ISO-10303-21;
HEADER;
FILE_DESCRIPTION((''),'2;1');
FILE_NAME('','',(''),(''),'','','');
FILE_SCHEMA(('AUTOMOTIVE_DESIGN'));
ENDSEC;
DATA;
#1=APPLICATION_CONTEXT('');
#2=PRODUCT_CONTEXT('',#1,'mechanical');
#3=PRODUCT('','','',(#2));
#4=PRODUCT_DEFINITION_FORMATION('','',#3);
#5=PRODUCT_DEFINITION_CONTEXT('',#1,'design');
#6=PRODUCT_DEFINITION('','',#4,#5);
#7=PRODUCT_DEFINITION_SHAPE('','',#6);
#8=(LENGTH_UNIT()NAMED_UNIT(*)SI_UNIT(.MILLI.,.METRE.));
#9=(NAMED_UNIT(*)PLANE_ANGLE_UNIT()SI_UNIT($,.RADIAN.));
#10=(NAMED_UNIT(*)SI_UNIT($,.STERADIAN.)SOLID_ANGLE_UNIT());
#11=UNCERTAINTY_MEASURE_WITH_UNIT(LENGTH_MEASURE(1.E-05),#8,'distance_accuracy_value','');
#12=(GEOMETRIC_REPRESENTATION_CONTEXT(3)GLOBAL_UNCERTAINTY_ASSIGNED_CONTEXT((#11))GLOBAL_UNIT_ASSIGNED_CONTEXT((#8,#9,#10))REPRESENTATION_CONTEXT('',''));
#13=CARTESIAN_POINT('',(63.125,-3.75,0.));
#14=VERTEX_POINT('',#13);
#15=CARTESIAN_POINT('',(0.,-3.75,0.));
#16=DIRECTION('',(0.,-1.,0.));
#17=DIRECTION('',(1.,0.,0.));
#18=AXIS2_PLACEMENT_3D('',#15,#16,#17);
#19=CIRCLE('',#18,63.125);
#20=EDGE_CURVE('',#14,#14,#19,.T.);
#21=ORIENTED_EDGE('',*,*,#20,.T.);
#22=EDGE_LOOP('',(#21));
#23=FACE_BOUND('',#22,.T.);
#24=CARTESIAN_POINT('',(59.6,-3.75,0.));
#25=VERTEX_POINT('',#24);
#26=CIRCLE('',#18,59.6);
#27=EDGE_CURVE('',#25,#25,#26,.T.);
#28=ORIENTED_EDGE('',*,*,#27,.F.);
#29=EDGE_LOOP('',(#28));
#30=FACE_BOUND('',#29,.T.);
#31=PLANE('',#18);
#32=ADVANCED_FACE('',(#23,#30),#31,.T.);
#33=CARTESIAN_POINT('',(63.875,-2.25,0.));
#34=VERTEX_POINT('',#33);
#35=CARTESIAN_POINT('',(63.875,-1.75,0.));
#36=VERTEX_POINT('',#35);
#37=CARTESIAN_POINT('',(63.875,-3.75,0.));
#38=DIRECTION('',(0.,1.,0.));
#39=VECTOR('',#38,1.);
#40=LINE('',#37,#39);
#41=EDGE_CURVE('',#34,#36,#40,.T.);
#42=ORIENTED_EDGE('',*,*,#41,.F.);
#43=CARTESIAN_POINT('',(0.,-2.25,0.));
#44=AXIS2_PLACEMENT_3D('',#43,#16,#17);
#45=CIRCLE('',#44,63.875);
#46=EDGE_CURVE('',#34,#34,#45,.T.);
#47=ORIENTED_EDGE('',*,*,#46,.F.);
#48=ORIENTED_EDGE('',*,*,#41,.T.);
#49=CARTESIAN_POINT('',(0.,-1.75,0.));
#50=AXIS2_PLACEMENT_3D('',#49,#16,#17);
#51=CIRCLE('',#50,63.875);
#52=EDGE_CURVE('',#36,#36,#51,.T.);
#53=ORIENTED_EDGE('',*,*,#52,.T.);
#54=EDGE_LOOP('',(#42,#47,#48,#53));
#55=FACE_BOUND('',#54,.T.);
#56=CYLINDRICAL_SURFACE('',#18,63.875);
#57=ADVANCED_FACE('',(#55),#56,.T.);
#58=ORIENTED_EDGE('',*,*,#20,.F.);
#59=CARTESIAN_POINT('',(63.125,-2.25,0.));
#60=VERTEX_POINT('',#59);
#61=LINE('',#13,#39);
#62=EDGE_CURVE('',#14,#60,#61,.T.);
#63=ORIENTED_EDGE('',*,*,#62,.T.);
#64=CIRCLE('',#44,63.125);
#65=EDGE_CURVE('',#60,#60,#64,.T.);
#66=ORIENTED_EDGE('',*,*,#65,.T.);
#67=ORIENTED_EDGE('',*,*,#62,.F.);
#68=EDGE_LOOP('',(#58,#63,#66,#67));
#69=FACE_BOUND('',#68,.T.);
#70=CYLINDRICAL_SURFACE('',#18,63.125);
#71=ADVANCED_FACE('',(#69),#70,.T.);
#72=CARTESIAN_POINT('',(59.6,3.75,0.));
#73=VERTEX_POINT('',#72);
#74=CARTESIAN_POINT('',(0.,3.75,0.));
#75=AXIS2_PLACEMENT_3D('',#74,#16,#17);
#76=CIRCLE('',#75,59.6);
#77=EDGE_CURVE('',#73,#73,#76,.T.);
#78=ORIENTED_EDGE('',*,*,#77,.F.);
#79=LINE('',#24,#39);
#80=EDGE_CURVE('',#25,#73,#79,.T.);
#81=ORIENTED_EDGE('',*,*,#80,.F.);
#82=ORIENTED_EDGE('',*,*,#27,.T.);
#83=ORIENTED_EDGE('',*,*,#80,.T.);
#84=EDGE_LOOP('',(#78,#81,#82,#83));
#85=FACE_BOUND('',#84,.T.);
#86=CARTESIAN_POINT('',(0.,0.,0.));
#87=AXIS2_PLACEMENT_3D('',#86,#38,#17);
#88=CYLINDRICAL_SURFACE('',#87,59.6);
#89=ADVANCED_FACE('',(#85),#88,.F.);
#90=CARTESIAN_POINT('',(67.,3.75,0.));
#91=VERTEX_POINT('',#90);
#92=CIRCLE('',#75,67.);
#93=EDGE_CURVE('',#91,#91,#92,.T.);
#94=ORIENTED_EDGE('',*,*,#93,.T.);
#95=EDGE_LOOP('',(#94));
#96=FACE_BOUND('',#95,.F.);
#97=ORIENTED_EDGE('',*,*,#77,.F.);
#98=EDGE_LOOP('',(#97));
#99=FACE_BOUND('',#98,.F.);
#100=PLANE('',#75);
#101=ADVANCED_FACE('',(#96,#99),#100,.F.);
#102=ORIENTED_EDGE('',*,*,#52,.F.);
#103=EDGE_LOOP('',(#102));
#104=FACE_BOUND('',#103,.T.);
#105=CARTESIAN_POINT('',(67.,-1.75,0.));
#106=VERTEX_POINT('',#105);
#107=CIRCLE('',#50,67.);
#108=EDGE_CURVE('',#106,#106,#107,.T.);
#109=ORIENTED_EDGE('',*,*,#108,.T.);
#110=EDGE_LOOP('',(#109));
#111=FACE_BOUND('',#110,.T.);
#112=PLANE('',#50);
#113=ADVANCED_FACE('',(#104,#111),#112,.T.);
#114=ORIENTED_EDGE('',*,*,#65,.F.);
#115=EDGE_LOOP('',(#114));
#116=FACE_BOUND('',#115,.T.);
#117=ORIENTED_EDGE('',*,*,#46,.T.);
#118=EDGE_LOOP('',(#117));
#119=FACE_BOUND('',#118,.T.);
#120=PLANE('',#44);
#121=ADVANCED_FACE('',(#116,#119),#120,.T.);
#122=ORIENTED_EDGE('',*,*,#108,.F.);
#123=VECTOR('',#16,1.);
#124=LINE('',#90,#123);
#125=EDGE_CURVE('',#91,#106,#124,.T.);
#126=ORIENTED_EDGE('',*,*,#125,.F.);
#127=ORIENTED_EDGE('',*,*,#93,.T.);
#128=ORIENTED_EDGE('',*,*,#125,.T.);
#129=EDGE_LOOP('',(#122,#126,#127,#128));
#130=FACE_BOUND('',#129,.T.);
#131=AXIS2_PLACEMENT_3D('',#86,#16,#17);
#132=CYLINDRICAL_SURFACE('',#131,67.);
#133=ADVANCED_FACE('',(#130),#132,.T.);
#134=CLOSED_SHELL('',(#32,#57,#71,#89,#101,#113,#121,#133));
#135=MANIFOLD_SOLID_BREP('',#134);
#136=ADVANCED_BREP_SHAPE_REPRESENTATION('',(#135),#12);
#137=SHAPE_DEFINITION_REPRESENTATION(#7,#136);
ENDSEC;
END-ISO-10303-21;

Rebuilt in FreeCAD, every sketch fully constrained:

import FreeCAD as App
import Part
import Sketcher
from FreeCAD import Vector

doc = App.newDocument("Part")
params = doc.addObject("Spreadsheet::Sheet", "Params")
for row, (alias, value) in enumerate([
    ("sketch1_diameter", "134 mm"),
    ("sketch1_diameter2", "119.2 mm"),
    ("pad1_length", "7.5 mm"),
    ("sketch2_diameter", "127.75 mm"),
    ("sketch2_diameter2", "126.25 mm"),
    ("pocket1_length", "1.5 mm"),
    ("sketch3_diameter", "134 mm"),
    ("sketch3_diameter2", "127.75 mm"),
    ("pocket2_length", "2 mm"),
], start=1):
    params.set(f"A{row}", alias)
    params.set(f"B{row}", "=" + value)
    params.setAlias(f"B{row}", alias)

body = doc.addObject("PartDesign::Body", "Body")

sketch1 = body.newObject("Sketcher::SketchObject", "Sketch")
sketch1.AttachmentSupport = (doc.getObject("XZ_Plane"), [""])
sketch1.MapMode = "FlatFace"
sketch1.addGeometry([
    Part.Circle(Vector(0, 0, 0), Vector(0, 0, 1), 67),
    Part.Circle(Vector(0, 0, 0), Vector(0, 0, 1), 60),
], False)
sketch1.addConstraint([
    Sketcher.Constraint("Coincident", 0, 3, -1, 1),
    Sketcher.Constraint("Coincident", 1, 3, -1, 1),
    Sketcher.Constraint("Diameter", 0, 134.0),
    Sketcher.Constraint("Diameter", 1, 119.2),
])
sketch1.setExpression("Constraints[2]", "Params.sketch1_diameter")
sketch1.setExpression("Constraints[3]", "Params.sketch1_diameter2")
pad1 = body.newObject("PartDesign::Pad", "Pad")
pad1.Profile = sketch1
pad1.setExpression("Length", "Params.pad1_length")
pad1.Midplane = True

sketch2 = body.newObject("Sketcher::SketchObject", "Sketch001")
sketch2.AttachmentSupport = (doc.getObject("XZ_Plane"), [""])
sketch2.MapMode = "FlatFace"
sketch2.AttachmentOffset = App.Placement(Vector(0, 0, 3.75), App.Rotation())
sketch2.addGeometry([
    Part.Circle(Vector(0, 0, 0), Vector(0, 0, 1), 64),
    Part.Circle(Vector(0, 0, 0), Vector(0, 0, 1), 63),
], False)
sketch2.addConstraint([
    Sketcher.Constraint("Coincident", 0, 3, -1, 1),
    Sketcher.Constraint("Coincident", 1, 3, -1, 1),
    Sketcher.Constraint("Diameter", 0, 127.75),
    Sketcher.Constraint("Diameter", 1, 126.25),
])
sketch2.setExpression("Constraints[2]", "Params.sketch2_diameter")
sketch2.setExpression("Constraints[3]", "Params.sketch2_diameter2")
pocket1 = body.newObject("PartDesign::Pocket", "Pocket")
pocket1.Profile = sketch2
pocket1.setExpression("Length", "Params.pocket1_length")

sketch3 = body.newObject("Sketcher::SketchObject", "Sketch002")
sketch3.AttachmentSupport = (doc.getObject("XZ_Plane"), [""])
sketch3.MapMode = "FlatFace"
sketch3.AttachmentOffset = App.Placement(Vector(0, 0, 3.75), App.Rotation())
sketch3.addGeometry([
    Part.Circle(Vector(0, 0, 0), Vector(0, 0, 1), 67),
    Part.Circle(Vector(0, 0, 0), Vector(0, 0, 1), 64),
], False)
sketch3.addConstraint([
    Sketcher.Constraint("Coincident", 0, 3, -1, 1),
    Sketcher.Constraint("Coincident", 1, 3, -1, 1),
    Sketcher.Constraint("Diameter", 0, 134.0),
    Sketcher.Constraint("Diameter", 1, 127.75),
])
sketch3.setExpression("Constraints[2]", "Params.sketch3_diameter")
sketch3.setExpression("Constraints[3]", "Params.sketch3_diameter2")
pocket2 = body.newObject("PartDesign::Pocket", "Pocket001")
pocket2.Profile = sketch3
pocket2.setExpression("Length", "Params.pocket2_length")

doc.recompute()
